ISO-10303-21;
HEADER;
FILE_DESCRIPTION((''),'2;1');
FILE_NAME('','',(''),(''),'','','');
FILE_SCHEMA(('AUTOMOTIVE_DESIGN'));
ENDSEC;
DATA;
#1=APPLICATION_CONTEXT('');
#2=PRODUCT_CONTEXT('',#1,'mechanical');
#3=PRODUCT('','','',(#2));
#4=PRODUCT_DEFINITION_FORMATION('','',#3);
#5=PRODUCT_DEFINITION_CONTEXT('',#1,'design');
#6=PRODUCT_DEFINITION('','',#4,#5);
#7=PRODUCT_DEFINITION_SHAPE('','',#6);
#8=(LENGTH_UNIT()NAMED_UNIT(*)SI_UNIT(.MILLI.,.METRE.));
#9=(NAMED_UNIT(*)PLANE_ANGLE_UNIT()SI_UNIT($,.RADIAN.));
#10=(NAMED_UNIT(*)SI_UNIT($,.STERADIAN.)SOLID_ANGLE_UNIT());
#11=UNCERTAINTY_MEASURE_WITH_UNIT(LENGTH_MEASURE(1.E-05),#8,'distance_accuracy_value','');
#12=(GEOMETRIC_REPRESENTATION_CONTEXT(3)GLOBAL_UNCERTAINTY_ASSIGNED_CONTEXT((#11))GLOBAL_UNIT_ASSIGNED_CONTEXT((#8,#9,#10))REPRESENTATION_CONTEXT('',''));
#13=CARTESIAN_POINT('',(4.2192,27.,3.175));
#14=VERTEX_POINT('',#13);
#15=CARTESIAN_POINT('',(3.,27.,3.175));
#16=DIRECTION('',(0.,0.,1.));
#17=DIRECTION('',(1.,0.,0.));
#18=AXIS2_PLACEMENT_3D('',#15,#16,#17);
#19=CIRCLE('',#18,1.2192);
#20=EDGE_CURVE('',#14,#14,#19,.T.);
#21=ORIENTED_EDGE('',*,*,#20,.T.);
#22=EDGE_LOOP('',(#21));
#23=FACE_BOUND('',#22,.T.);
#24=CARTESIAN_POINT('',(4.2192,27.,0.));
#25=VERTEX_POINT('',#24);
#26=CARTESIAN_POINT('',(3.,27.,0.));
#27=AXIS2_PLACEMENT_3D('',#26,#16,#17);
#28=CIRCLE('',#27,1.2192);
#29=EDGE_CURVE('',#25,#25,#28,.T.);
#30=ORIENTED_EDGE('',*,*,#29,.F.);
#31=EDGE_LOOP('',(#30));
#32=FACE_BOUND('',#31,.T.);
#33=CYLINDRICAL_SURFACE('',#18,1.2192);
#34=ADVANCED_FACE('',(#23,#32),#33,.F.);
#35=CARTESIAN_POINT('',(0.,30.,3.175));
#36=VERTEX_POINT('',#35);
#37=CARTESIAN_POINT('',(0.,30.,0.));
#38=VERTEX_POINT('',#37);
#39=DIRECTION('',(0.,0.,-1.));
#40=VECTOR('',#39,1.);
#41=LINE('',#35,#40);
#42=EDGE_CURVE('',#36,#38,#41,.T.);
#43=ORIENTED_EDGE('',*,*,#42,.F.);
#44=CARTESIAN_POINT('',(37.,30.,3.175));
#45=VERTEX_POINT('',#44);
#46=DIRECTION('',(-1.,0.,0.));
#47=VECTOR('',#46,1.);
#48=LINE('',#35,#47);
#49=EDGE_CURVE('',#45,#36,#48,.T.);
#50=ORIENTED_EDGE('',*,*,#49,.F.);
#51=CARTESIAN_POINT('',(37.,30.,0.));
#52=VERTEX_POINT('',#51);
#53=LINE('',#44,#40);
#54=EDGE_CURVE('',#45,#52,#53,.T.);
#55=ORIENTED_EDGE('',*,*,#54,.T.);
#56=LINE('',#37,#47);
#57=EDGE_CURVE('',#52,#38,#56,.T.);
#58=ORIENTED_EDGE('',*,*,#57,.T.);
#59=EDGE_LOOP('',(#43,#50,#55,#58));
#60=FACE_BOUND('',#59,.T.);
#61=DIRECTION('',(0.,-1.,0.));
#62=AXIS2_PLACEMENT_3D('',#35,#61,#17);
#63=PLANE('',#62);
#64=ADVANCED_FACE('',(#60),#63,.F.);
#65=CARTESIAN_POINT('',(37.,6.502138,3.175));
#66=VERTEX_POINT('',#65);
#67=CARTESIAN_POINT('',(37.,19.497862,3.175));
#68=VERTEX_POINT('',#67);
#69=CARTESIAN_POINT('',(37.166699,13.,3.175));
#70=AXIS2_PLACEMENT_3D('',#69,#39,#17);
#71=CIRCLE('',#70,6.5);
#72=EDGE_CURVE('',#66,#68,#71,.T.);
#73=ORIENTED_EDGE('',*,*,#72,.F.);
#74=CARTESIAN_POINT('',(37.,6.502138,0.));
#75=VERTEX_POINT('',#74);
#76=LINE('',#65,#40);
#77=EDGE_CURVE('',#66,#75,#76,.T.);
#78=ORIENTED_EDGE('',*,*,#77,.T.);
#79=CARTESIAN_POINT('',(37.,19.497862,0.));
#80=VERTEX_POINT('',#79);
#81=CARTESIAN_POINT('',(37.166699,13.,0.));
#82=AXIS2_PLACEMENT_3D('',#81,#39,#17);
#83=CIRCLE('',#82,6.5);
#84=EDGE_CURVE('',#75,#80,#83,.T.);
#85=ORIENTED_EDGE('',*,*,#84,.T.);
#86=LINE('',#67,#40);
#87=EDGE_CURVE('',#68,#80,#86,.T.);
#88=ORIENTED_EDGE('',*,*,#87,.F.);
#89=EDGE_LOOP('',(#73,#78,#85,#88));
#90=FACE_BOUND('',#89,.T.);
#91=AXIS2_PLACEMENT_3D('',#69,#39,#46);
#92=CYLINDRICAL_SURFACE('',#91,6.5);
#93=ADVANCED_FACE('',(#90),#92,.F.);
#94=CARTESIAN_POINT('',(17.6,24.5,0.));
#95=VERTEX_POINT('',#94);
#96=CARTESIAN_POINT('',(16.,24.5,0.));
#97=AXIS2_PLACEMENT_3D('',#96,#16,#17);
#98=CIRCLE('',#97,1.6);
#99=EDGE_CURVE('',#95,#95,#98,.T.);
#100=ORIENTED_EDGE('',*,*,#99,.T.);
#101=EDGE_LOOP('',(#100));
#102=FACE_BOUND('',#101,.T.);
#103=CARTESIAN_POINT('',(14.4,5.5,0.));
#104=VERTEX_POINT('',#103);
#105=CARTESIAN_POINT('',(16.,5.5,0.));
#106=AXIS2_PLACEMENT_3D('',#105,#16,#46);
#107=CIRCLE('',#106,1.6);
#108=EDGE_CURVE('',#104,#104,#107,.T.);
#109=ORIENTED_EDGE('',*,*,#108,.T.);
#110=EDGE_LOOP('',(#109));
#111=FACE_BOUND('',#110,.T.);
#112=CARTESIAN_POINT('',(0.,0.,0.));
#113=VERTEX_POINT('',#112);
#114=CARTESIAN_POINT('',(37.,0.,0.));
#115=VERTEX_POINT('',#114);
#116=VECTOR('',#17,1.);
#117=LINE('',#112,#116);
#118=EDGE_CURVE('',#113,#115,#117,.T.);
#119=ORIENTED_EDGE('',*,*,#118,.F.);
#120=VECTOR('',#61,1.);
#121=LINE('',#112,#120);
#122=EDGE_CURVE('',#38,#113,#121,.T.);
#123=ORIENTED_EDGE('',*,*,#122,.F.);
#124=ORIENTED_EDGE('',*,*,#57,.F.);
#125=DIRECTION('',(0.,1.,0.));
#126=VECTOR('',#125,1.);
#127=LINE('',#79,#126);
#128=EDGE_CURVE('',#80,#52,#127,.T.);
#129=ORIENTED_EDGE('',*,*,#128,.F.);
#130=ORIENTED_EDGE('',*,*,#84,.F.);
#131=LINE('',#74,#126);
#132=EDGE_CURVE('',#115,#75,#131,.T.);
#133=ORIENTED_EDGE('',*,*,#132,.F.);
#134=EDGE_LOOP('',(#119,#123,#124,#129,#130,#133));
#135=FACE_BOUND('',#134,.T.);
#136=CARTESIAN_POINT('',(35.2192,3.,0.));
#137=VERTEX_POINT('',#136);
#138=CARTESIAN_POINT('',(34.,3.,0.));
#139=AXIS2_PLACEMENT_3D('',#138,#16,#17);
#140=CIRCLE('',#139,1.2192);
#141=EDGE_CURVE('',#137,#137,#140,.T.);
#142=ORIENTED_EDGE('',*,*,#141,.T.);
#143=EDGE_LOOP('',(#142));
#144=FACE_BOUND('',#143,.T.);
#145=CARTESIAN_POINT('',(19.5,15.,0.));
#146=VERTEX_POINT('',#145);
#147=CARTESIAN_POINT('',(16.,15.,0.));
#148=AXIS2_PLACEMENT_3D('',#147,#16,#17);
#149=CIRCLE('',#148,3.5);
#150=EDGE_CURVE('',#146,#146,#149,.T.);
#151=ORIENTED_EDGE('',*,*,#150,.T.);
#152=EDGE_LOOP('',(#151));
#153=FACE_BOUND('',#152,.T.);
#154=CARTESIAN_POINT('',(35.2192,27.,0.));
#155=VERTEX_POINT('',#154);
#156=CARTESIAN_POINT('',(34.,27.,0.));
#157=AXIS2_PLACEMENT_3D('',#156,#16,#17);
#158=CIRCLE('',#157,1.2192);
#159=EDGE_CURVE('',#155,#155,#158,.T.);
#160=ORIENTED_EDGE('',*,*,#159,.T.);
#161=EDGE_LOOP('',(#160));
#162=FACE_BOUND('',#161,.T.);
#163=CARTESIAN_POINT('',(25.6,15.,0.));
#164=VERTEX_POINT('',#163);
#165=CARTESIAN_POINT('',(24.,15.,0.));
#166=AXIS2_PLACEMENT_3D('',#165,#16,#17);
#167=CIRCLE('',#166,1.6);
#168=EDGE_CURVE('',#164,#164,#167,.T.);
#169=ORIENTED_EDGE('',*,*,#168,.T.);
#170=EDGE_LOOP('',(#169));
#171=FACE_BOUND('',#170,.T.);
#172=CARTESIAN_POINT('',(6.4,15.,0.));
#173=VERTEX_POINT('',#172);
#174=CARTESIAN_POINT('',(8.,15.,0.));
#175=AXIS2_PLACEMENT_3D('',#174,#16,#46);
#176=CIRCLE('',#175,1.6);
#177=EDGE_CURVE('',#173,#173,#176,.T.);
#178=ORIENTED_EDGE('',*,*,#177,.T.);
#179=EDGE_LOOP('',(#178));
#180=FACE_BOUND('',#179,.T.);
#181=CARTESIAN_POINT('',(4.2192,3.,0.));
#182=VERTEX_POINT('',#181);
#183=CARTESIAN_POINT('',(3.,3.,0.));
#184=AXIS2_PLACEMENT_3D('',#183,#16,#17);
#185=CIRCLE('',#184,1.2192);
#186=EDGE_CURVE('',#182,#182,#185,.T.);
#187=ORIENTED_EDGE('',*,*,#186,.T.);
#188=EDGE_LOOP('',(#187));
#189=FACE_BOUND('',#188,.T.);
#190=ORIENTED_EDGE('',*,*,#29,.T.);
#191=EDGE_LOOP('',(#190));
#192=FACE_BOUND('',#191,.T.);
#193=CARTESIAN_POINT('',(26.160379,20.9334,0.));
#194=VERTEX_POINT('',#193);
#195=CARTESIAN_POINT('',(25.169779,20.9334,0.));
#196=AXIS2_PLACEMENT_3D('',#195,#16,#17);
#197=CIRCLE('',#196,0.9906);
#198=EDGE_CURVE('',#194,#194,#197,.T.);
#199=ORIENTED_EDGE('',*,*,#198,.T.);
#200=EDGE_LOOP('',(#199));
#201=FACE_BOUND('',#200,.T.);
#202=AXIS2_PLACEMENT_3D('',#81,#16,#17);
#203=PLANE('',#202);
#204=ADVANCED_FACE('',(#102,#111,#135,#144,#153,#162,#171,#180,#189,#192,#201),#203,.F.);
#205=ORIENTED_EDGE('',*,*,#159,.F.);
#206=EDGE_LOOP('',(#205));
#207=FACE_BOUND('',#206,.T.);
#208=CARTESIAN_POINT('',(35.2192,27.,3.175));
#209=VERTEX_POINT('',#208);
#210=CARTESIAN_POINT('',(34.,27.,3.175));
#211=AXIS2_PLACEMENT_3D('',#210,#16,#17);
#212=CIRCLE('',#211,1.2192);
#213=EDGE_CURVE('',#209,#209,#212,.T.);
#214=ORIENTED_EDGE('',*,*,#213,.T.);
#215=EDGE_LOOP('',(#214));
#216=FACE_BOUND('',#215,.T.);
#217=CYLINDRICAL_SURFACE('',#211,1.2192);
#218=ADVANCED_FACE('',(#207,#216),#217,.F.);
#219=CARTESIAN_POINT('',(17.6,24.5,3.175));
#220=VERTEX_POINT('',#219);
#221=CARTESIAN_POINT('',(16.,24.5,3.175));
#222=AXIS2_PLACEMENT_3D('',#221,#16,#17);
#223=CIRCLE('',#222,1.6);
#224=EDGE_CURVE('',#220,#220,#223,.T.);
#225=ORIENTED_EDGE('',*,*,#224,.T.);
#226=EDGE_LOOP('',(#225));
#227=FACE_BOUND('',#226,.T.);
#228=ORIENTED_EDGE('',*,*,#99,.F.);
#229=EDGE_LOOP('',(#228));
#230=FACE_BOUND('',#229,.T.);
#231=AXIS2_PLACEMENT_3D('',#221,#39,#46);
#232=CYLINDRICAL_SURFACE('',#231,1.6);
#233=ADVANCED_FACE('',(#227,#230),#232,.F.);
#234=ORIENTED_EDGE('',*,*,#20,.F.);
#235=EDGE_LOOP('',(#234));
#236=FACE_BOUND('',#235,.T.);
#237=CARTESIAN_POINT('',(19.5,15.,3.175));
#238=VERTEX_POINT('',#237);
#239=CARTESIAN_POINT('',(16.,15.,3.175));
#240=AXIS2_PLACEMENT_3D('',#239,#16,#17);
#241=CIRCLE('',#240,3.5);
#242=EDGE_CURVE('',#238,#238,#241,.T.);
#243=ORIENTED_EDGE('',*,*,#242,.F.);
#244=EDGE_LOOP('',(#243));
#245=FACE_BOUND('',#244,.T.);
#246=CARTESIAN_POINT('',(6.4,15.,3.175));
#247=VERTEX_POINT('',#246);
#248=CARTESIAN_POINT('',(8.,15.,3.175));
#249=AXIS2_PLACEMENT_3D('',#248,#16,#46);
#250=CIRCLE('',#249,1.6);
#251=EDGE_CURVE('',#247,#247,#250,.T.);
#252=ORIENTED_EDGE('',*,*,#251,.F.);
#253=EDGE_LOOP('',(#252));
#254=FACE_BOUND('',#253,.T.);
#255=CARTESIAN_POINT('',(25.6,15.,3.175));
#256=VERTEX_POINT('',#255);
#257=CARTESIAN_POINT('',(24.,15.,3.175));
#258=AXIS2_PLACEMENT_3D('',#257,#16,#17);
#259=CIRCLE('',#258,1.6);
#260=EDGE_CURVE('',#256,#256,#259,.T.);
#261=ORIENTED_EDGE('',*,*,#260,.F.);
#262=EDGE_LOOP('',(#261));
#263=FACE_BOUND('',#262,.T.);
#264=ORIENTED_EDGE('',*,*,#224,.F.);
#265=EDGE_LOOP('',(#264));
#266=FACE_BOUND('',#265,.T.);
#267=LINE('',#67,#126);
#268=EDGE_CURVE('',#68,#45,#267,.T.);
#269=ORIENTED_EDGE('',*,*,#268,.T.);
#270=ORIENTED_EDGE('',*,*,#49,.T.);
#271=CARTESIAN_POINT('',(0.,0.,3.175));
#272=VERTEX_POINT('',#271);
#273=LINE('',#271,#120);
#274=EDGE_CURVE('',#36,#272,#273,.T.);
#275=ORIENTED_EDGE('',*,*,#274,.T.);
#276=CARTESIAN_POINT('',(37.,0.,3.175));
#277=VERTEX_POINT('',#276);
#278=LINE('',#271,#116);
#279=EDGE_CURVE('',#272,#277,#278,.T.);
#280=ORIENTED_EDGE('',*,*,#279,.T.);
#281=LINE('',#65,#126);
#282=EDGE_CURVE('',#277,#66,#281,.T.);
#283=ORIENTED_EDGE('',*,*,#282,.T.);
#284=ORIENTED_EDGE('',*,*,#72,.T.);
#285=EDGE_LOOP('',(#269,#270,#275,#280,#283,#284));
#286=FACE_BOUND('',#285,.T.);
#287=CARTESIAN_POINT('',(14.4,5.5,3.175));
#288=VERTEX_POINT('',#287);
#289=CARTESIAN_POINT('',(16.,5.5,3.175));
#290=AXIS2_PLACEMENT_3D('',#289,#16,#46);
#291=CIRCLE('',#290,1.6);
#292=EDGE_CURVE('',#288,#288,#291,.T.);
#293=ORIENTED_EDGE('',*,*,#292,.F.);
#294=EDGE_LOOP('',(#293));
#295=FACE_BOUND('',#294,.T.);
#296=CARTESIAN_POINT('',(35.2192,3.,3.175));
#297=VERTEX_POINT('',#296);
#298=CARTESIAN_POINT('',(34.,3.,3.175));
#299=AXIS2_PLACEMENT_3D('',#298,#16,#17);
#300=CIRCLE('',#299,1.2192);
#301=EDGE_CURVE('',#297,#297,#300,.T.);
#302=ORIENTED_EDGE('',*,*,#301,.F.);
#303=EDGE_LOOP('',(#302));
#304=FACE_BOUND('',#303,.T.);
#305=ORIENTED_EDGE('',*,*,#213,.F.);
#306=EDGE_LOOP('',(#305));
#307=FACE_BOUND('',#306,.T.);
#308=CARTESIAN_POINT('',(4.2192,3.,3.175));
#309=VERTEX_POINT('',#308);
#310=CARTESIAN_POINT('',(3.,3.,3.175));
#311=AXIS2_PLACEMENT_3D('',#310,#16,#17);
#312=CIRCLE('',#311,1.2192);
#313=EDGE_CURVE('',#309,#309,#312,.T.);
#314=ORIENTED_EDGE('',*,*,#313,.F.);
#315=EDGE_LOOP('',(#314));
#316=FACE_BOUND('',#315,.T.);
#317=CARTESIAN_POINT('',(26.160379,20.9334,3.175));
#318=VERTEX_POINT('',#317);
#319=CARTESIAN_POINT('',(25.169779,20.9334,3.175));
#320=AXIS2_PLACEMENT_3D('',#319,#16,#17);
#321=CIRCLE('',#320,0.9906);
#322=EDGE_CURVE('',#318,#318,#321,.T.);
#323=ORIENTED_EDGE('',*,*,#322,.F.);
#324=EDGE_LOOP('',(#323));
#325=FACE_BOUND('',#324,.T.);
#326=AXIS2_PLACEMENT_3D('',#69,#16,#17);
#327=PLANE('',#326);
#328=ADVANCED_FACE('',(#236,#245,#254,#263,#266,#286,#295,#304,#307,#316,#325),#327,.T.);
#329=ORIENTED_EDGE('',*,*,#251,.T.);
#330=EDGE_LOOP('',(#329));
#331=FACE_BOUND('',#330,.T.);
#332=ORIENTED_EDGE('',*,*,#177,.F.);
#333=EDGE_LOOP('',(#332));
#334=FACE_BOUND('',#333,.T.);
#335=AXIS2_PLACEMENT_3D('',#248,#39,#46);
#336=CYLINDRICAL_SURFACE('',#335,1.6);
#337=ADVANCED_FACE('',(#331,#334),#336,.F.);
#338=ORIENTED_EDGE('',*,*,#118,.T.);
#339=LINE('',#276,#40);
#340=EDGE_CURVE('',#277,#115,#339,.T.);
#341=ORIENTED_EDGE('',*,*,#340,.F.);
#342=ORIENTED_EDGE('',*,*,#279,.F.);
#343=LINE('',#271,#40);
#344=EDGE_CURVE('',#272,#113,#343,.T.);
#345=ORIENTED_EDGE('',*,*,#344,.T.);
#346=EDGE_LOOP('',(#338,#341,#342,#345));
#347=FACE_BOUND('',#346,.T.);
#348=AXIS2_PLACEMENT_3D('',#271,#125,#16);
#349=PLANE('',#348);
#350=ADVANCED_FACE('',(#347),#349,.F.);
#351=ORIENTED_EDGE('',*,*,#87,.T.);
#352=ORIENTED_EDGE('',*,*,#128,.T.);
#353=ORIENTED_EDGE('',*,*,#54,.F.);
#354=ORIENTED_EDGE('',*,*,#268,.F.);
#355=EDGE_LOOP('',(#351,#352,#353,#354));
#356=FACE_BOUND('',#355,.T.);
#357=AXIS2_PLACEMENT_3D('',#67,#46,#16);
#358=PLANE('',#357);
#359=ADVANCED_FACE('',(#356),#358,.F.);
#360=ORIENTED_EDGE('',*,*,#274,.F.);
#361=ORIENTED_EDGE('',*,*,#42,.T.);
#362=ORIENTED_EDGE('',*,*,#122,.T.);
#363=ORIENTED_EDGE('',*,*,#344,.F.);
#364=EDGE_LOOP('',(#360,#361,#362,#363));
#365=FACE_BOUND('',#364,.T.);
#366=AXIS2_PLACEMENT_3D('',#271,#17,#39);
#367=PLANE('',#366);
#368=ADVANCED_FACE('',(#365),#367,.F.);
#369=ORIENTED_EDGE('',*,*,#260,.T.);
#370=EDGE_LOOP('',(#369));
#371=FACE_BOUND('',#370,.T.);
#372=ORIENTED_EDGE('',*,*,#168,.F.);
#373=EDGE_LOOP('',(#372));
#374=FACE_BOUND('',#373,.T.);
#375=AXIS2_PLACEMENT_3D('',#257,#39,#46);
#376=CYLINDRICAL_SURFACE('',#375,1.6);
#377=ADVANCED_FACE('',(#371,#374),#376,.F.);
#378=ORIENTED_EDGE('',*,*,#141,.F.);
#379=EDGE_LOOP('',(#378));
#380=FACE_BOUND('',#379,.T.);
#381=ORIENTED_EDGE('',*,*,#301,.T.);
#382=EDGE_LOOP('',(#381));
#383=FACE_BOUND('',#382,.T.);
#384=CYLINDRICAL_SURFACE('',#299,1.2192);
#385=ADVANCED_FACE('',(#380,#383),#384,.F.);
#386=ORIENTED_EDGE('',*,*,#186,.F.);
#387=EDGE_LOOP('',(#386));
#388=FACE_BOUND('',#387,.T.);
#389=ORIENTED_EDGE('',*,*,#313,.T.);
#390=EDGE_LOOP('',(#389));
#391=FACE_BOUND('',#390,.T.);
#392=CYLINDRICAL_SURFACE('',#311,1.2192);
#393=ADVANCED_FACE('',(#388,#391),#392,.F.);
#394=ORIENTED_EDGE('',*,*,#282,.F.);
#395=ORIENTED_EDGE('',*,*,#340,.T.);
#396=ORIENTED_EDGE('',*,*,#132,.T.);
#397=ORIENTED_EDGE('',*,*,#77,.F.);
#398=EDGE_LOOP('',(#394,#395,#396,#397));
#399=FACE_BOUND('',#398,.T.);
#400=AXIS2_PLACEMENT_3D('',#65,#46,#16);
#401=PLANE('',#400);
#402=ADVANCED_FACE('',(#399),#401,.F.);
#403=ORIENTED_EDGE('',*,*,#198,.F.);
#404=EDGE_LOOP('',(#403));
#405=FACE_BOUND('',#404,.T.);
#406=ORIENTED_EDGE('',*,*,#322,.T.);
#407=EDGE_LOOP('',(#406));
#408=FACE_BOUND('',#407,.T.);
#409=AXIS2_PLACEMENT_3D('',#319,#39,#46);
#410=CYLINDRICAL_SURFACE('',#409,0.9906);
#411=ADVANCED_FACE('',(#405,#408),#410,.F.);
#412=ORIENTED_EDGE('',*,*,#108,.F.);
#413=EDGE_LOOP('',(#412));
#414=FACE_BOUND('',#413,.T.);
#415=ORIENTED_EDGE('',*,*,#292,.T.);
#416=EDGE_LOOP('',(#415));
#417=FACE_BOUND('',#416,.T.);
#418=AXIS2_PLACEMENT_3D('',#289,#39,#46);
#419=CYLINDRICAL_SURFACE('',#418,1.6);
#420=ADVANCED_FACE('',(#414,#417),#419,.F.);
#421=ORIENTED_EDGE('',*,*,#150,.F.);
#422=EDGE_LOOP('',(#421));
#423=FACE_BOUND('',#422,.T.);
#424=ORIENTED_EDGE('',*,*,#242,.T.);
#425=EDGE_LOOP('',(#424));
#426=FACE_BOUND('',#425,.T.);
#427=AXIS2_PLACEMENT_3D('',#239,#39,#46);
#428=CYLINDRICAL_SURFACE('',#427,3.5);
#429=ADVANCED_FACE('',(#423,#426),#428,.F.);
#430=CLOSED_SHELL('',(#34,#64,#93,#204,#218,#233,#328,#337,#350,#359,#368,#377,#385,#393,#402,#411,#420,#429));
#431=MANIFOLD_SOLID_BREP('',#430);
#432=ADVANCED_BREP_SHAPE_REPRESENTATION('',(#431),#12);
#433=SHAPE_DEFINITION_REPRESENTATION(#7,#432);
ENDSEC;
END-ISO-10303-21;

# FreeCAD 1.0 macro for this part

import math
import FreeCAD as App
import Part
import Sketcher

V = App.Vector

doc = App.newDocument("Part")
body = doc.addObject("PartDesign::Body", "Body")

# Sketch on XY plane
sketch1 = doc.addObject("Sketcher::SketchObject", "Sketch")
body.addObject(sketch1)
sketch1.AttachmentSupport = (doc.XY_Plane, [""])
sketch1.MapMode = "FlatFace"
sketch1.addGeometry(Part.LineSegment(V(0, 0, 0), V(37, 0, 0)), False)
sketch1.addGeometry(Part.LineSegment(V(37, 0, 0), V(37, 6.502138, 0)), False)
sketch1.addGeometry(Part.ArcOfCircle(Part.Circle(V(37.166699, 13, 0), V(0, 0, 1), 6.5), math.radians(91.469571), math.radians(268.530429)), False)
sketch1.addGeometry(Part.LineSegment(V(37, 19.497862, 0), V(37, 30, 0)), False)
sketch1.addGeometry(Part.LineSegment(V(37, 30, 0), V(0, 30, 0)), False)
sketch1.addGeometry(Part.LineSegment(V(0, 30, 0), V(0, 0, 0)), False)
sketch1.addGeometry(Part.Circle(V(16, 5.5, 0), V(0, 0, 1), 1.6), False)
sketch1.addGeometry(Part.Circle(V(8, 15, 0), V(0, 0, 1), 1.6), False)
sketch1.addGeometry(Part.Circle(V(16, 15, 0), V(0, 0, 1), 3.5), False)
sketch1.addGeometry(Part.Circle(V(24, 15, 0), V(0, 0, 1), 1.6), False)
sketch1.addGeometry(Part.Circle(V(16, 24.5, 0), V(0, 0, 1), 1.6), False)
sketch1.addGeometry(Part.Circle(V(25.169779, 20.9334, 0), V(0, 0, 1), 0.9906), False)
sketch1.addConstraint(Sketcher.Constraint("Coincident", 0, 2, 1, 1))
sketch1.addConstraint(Sketcher.Constraint("Coincident", 1, 2, 2, 2))
sketch1.addConstraint(Sketcher.Constraint("Coincident", 2, 1, 3, 1))
sketch1.addConstraint(Sketcher.Constraint("Coincident", 3, 2, 4, 1))
sketch1.addConstraint(Sketcher.Constraint("Coincident", 4, 2, 5, 1))
sketch1.addConstraint(Sketcher.Constraint("Coincident", 5, 2, 0, 1))
sketch1.addConstraint(Sketcher.Constraint("Horizontal", 0))
sketch1.addConstraint(Sketcher.Constraint("Vertical", 1))
sketch1.addConstraint(Sketcher.Constraint("Vertical", 3))
sketch1.addConstraint(Sketcher.Constraint("Horizontal", 4))
sketch1.addConstraint(Sketcher.Constraint("Vertical", 5))
sketch1.addConstraint(Sketcher.Constraint("Coincident", 5, 2, -1, 1))
sketch1.addConstraint(Sketcher.Constraint("Equal", 6, 7))
sketch1.addConstraint(Sketcher.Constraint("Equal", 7, 9))
sketch1.addConstraint(Sketcher.Constraint("Equal", 9, 10))
sketch1.addConstraint(Sketcher.Constraint("Horizontal", 7, 3, 8, 3))
sketch1.addConstraint(Sketcher.Constraint("Horizontal", 8, 3, 9, 3))
sketch1.addConstraint(Sketcher.Constraint("Vertical", 6, 3, 8, 3))
sketch1.addConstraint(Sketcher.Constraint("Vertical", 8, 3, 10, 3))
sketch1.addConstraint(Sketcher.Constraint("Vertical", 1, 2, 2, 1))
sketch1.addConstraint(Sketcher.Constraint("Diameter", 8, 7.0))
sketch1.addConstraint(Sketcher.Constraint("Diameter", 6, 3.2))
sketch1.addConstraint(Sketcher.Constraint("Radius", 2, 6.5))
sketch1.addConstraint(Sketcher.Constraint("DistanceX", 0, 1, 0, 2, 37.0))
sketch1.addConstraint(Sketcher.Constraint("DistanceY", 5, 2, 5, 1, 30.0))
sketch1.addConstraint(Sketcher.Constraint("DistanceY", -1, 1, 2, 3, 13.0))
sketch1.addConstraint(Sketcher.Constraint("DistanceX", -1, 1, 6, 3, 16.0))
sketch1.addConstraint(Sketcher.Constraint("DistanceX", -1, 1, 7, 3, 8.0))
sketch1.addConstraint(Sketcher.Constraint("DistanceY", -1, 1, 7, 3, 15.0))
sketch1.addConstraint(Sketcher.Constraint("DistanceX", -1, 1, 9, 3, 24.0))
sketch1.addConstraint(Sketcher.Constraint("DistanceY", 6, 3, 10, 3, 19.0))
sketch1.addConstraint(Sketcher.Constraint("Diameter", 11, 1.9812))
sketch1.addConstraint(Sketcher.Constraint("DistanceY", -1, 1, 6, 3, 5.5))
sketch1.addConstraint(Sketcher.Constraint("DistanceX", -1, 1, 2, 3, 37.166699))
sketch1.addConstraint(Sketcher.Constraint("DistanceY", -1, 1, 11, 3, 20.9334))
sketch1.addConstraint(Sketcher.Constraint("DistanceX", -1, 1, 11, 3, 25.169779))
pad1 = doc.addObject("PartDesign::Pad", "Pad")
body.addObject(pad1)
pad1.Profile = sketch1
pad1.Length = 3.175

# Sketch on XY plane
sketch2 = doc.addObject("Sketcher::SketchObject", "Sketch001")
body.addObject(sketch2)
sketch2.AttachmentSupport = (doc.XY_Plane, [""])
sketch2.MapMode = "FlatFace"
sketch2.AttachmentOffset = App.Placement(V(0, 0, 3.175), App.Rotation())
sketch2.addGeometry(Part.Circle(V(3, 27, 0), V(0, 0, 1), 1.2192), False)
sketch2.addGeometry(Part.Circle(V(3, 3, 0), V(0, 0, 1), 1.2192), False)
sketch2.addGeometry(Part.Circle(V(34, 3, 0), V(0, 0, 1), 1.2192), False)
sketch2.addGeometry(Part.Circle(V(34, 27, 0), V(0, 0, 1), 1.2192), False)
sketch2.addConstraint(Sketcher.Constraint("Equal", 0, 1))
sketch2.addConstraint(Sketcher.Constraint("Equal", 1, 2))
sketch2.addConstraint(Sketcher.Constraint("Equal", 2, 3))
sketch2.addConstraint(Sketcher.Constraint("Horizontal", 1, 3, 2, 3))
sketch2.addConstraint(Sketcher.Constraint("Horizontal", 0, 3, 3, 3))
sketch2.addConstraint(Sketcher.Constraint("Vertical", 0, 3, 1, 3))
sketch2.addConstraint(Sketcher.Constraint("Vertical", 2, 3, 3, 3))
sketch2.addConstraint(Sketcher.Constraint("DistanceX", -1, 1, 0, 3, 3.0))
sketch2.addConstraint(Sketcher.Constraint("DistanceY", -1, 1, 0, 3, 27.0))
sketch2.addConstraint(Sketcher.Constraint("DistanceY", -1, 1, 1, 3, 3.0))
sketch2.addConstraint(Sketcher.Constraint("DistanceX", -1, 1, 2, 3, 34.0))
sketch2.addConstraint(Sketcher.Constraint("Diameter", 0, 2.4384))
doc.recompute()
hole = doc.addObject("PartDesign::Hole", "Hole")
body.addObject(hole)
hole.Profile = sketch2
hole.ThreadType = "None"
hole.Diameter = 2.4384
hole.DepthType = "Dimension"
hole.Depth = 3.302
hole.DrillPoint = "Angled"
hole.DrillPointAngle = 118

doc.recompute()
